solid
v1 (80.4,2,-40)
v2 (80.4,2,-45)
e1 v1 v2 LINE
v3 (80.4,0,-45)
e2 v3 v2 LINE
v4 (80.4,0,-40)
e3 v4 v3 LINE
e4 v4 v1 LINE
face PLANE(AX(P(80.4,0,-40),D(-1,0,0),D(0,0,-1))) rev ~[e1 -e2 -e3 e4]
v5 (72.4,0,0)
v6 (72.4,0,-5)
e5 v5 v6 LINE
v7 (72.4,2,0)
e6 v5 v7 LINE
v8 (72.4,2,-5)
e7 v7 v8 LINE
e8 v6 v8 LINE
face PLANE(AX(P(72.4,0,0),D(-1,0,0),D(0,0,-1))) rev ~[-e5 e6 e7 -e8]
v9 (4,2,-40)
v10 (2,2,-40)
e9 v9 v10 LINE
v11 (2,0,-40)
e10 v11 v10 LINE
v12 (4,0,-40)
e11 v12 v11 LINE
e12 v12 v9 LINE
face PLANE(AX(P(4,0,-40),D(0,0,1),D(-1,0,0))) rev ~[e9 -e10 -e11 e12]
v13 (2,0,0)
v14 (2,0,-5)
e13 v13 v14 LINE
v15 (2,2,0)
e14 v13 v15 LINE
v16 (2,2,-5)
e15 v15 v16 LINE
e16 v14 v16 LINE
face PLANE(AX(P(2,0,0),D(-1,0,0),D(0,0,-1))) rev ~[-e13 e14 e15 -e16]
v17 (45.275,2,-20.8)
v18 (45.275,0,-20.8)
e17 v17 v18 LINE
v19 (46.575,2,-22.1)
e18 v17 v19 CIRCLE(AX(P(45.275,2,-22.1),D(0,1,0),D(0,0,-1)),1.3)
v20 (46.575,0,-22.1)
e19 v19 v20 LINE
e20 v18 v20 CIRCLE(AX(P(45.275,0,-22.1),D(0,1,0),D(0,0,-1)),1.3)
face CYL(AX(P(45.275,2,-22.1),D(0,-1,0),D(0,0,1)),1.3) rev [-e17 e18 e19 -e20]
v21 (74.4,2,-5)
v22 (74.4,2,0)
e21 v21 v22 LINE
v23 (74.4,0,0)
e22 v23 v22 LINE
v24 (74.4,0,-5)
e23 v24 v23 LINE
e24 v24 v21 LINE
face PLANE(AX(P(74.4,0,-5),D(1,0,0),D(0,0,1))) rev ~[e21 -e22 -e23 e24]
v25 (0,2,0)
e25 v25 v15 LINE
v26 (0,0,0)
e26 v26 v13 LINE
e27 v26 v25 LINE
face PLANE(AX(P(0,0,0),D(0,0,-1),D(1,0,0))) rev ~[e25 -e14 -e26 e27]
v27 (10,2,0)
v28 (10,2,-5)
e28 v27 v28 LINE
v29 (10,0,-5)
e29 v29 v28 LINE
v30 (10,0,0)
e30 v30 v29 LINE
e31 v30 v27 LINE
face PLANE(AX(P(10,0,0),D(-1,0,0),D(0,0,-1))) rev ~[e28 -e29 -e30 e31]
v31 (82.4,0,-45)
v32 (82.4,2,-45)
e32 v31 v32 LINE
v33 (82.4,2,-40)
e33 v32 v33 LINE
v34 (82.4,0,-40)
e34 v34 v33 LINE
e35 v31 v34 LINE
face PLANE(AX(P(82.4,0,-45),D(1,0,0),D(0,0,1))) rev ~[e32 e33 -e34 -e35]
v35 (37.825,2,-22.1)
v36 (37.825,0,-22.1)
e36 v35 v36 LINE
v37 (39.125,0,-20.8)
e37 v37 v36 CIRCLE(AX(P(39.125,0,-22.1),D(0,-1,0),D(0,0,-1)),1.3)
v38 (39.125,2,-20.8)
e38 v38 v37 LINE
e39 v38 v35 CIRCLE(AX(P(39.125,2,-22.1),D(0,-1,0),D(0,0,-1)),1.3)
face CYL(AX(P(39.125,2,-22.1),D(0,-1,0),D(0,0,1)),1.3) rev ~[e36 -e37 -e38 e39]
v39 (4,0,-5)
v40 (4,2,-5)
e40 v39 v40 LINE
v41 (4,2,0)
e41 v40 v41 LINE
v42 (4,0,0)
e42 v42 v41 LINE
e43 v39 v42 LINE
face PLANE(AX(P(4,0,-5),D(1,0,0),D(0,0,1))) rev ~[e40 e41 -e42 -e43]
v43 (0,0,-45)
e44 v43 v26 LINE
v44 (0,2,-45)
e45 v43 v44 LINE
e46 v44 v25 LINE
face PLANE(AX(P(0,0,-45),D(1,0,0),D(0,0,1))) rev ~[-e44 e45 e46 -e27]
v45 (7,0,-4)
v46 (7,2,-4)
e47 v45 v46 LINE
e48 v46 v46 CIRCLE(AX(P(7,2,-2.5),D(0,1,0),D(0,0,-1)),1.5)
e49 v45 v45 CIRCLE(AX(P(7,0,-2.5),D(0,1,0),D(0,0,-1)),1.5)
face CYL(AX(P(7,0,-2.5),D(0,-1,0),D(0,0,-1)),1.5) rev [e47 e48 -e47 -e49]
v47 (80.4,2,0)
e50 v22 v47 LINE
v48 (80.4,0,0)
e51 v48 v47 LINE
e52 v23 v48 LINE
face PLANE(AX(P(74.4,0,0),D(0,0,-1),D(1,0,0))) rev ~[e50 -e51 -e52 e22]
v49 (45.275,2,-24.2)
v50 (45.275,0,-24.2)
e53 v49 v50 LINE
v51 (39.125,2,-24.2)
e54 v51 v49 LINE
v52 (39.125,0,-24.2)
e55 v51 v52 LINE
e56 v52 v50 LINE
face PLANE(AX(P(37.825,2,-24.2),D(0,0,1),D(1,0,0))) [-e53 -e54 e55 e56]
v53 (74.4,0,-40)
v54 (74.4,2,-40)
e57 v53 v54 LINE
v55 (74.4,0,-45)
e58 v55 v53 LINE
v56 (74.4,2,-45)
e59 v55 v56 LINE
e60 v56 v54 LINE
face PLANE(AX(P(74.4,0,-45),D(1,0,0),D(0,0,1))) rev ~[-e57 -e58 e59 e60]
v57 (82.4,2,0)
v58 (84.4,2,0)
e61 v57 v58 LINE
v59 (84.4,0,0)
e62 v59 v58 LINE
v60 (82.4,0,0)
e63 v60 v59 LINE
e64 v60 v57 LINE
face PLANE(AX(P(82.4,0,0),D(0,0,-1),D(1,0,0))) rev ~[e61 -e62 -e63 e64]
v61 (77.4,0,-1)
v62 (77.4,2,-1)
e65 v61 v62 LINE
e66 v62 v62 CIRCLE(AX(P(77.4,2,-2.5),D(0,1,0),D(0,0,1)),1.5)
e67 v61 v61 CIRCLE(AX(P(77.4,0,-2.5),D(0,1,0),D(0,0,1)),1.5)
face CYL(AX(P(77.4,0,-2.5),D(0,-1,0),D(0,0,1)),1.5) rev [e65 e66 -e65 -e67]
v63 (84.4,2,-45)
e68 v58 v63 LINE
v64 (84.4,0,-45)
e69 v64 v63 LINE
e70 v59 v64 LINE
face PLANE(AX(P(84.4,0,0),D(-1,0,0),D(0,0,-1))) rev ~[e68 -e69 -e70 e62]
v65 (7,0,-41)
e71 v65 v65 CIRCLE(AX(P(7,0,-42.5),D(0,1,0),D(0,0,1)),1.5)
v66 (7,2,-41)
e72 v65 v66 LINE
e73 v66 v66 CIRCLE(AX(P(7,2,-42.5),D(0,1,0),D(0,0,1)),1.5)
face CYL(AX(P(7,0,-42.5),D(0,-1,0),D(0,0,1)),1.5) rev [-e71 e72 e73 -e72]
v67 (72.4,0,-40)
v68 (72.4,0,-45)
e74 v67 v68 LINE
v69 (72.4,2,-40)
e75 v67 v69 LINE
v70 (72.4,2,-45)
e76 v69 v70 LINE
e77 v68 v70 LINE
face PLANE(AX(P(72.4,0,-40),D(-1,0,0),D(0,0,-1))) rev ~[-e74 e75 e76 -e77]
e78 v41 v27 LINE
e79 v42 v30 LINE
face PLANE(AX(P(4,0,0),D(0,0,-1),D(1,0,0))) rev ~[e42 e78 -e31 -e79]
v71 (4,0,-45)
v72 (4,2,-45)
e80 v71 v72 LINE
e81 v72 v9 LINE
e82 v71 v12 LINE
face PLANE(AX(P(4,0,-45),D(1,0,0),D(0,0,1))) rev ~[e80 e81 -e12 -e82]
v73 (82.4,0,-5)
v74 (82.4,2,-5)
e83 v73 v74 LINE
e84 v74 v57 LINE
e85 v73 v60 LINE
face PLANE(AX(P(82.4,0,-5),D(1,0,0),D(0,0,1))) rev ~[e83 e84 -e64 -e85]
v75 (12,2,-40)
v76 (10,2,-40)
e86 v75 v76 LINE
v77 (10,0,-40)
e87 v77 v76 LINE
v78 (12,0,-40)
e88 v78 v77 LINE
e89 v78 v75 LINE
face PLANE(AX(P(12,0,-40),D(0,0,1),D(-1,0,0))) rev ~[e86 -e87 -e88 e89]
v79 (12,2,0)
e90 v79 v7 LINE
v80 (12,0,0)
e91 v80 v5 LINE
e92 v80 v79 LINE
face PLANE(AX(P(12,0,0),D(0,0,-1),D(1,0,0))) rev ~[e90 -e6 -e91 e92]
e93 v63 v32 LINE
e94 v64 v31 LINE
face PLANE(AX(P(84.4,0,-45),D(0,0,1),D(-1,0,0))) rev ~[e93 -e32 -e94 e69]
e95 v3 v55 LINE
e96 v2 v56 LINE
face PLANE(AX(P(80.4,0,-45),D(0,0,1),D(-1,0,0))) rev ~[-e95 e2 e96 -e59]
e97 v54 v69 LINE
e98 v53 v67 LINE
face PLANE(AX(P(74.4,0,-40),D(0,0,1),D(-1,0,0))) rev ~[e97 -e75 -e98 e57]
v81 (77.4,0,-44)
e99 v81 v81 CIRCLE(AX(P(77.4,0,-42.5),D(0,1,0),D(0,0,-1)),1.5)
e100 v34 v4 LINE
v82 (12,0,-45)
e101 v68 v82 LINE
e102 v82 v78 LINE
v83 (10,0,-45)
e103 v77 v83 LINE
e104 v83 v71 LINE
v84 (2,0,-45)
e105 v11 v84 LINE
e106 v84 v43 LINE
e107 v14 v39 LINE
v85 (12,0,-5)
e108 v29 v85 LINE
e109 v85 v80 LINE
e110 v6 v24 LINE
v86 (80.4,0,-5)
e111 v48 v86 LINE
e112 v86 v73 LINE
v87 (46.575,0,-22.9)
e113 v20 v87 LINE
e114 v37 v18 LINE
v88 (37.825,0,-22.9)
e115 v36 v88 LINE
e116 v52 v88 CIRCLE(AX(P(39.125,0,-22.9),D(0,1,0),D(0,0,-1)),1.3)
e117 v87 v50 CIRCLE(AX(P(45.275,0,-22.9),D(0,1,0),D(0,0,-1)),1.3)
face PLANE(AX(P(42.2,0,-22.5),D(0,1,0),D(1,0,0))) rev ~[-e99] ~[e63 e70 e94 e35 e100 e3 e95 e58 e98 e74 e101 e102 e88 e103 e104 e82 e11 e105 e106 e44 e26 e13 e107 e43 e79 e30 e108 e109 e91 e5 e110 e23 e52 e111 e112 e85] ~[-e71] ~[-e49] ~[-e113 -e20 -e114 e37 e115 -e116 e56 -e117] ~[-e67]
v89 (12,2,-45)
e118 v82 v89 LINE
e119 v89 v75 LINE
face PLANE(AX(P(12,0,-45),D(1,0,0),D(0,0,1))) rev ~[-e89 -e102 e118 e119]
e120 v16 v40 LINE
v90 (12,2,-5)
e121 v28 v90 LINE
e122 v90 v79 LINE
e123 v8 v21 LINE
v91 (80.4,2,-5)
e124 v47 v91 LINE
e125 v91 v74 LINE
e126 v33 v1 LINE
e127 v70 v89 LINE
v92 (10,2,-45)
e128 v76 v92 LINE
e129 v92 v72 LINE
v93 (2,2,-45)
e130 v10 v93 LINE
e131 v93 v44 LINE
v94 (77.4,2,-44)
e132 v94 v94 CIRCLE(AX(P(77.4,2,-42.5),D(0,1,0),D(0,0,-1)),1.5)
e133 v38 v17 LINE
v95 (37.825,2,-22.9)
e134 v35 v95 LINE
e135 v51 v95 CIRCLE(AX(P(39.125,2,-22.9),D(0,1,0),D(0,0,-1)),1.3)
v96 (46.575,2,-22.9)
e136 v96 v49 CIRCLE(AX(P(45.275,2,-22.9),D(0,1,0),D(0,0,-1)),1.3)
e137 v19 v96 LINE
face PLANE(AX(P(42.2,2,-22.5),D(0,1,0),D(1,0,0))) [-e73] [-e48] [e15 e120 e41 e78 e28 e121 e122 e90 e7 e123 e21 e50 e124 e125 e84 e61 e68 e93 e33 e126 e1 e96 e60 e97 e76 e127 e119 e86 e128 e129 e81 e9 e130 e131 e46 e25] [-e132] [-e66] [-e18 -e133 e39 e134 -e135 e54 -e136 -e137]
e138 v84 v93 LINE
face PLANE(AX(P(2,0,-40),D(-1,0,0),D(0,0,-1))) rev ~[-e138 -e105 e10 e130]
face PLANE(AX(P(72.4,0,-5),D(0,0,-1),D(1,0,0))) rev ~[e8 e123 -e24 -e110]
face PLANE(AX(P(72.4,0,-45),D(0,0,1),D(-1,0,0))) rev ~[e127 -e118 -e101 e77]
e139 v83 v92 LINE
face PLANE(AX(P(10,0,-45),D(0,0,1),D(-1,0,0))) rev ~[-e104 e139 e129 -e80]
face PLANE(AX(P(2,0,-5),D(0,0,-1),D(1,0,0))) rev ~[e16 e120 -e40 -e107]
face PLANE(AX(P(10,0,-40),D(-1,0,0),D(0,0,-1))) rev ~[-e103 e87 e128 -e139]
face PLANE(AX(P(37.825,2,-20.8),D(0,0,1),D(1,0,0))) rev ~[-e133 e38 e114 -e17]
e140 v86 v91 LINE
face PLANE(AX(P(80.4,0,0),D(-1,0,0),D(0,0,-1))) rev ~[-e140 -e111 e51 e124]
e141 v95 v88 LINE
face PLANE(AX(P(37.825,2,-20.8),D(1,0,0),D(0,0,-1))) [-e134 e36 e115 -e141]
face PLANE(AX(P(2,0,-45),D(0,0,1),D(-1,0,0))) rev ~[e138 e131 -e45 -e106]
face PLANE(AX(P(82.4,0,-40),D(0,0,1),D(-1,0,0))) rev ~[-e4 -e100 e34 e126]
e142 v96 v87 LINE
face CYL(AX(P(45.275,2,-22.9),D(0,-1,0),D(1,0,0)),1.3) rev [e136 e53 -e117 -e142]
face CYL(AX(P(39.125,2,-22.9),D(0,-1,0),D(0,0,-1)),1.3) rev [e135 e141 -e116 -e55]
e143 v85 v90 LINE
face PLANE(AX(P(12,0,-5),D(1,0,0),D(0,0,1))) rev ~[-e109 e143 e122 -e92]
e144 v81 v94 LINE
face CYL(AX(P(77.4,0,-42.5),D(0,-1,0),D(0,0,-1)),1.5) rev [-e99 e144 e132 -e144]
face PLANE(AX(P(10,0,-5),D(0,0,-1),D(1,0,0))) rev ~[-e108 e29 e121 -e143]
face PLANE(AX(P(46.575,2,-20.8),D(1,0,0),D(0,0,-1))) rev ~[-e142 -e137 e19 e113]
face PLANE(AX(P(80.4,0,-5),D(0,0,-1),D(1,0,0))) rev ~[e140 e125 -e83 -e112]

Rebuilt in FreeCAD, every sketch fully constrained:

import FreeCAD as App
import Part
import Sketcher

V = App.Vector


def edges_at(feature, points):
    """Names of the edges that pass closest to the given points."""
    edges = feature.Shape.Edges
    near = lambda p: min(range(len(edges)), key=lambda i: edges[i].distToShape(Part.Vertex(*p))[0])
    return sorted({f"Edge{near(p) + 1}" for p in points})


def add_polygon(sketch, points):
    """Adds a closed chain of lines whose ends are joined by coincident constraints."""
    first, n = sketch.GeometryCount, len(points)
    for a, b in zip(points, points[1:] + points[:1]):
        sketch.addGeometry(Part.LineSegment(App.Vector(*a, 0), App.Vector(*b, 0)), False)
    for i in range(n):
        sketch.addConstraint(Sketcher.Constraint("Coincident", first + i, 2, first + (i + 1) % n, 1))

doc = App.newDocument("Part")
params = doc.addObject("Spreadsheet::Sheet", "Params")
for row, (alias, value) in enumerate([
    ("sketch1_diameter", "3 mm"),
    ("sketch1_width", "2 mm"),
    ("sketch1_width2", "6 mm"),
    ("sketch1_height", "5 mm"),
    ("sketch1_height2", "45 mm"),
    ("pad1_length", "2 mm"),
    ("sketch2_height", "3.4 mm"),
    ("sketch2_width", "8.75 mm"),
    ("pocket1_length", "10 mm"),
    ("fillet_radius", "1.3 mm"),
], start=1):
    params.set(f"A{row}", alias)
    params.set(f"B{row}", "=" + value)
    params.setAlias(f"B{row}", alias)

body = doc.addObject("PartDesign::Body", "Body")

# Sketch on XZ plane
sketch1 = body.newObject("Sketcher::SketchObject", "Sketch")
sketch1.AttachmentSupport = (doc.getObject("XZ_Plane"), [""])
sketch1.MapMode = "FlatFace"
add_polygon(sketch1, [(0, 0), (2, 0), (2, -5), (4, -5), (4, 0), (10, 0), (10, -5), (12, -5), (12, 0), (72.4, 0), (72.4, -5), (74.4, -5), (74.4, 0), (80.4, 0), (80.4, -5), (82.4, -5), (82.4, 0), (84.4, 0), (84.4, -45), (82.4, -45), (82.4, -40), (80.4, -40), (80.4, -45), (74.4, -45), (74.4, -40), (72.4, -40), (72.4, -45), (12, -45), (12, -40), (10, -40), (10, -45), (4, -45), (4, -40), (2, -40), (2, -45), (0, -45)])  # lines 0-35
sketch1.addGeometry(Part.Circle(V(7, -2.5, 0), V(0, 0, 1), 1.5), False)  # 36
sketch1.addGeometry(Part.Circle(V(77.4, -2.5, 0), V(0, 0, 1), 1.5), False)  # 37
sketch1.addGeometry(Part.Circle(V(7, -42.5, 0), V(0, 0, 1), 1.5), False)  # 38
sketch1.addGeometry(Part.Circle(V(77.4, -42.5, 0), V(0, 0, 1), 1.5), False)  # 39
sketch1.addConstraint(Sketcher.Constraint("Horizontal", 0))
sketch1.addConstraint(Sketcher.Constraint("Vertical", 1))
sketch1.addConstraint(Sketcher.Constraint("Horizontal", 2))
sketch1.addConstraint(Sketcher.Constraint("Vertical", 3))
sketch1.addConstraint(Sketcher.Constraint("Horizontal", 4))
sketch1.addConstraint(Sketcher.Constraint("Vertical", 5))
sketch1.addConstraint(Sketcher.Constraint("Horizontal", 6))
sketch1.addConstraint(Sketcher.Constraint("Vertical", 7))
sketch1.addConstraint(Sketcher.Constraint("Horizontal", 8))
sketch1.addConstraint(Sketcher.Constraint("Vertical", 9))
sketch1.addConstraint(Sketcher.Constraint("Horizontal", 10))
sketch1.addConstraint(Sketcher.Constraint("Vertical", 11))
sketch1.addConstraint(Sketcher.Constraint("Horizontal", 12))
sketch1.addConstraint(Sketcher.Constraint("Vertical", 13))
sketch1.addConstraint(Sketcher.Constraint("Horizontal", 14))
sketch1.addConstraint(Sketcher.Constraint("Vertical", 15))
sketch1.addConstraint(Sketcher.Constraint("Horizontal", 16))
sketch1.addConstraint(Sketcher.Constraint("Vertical", 17))
sketch1.addConstraint(Sketcher.Constraint("Horizontal", 18))
sketch1.addConstraint(Sketcher.Constraint("Vertical", 19))
sketch1.addConstraint(Sketcher.Constraint("Horizontal", 20))
sketch1.addConstraint(Sketcher.Constraint("Vertical", 21))
sketch1.addConstraint(Sketcher.Constraint("Horizontal", 22))
sketch1.addConstraint(Sketcher.Constraint("Vertical", 23))
sketch1.addConstraint(Sketcher.Constraint("Horizontal", 24))
sketch1.addConstraint(Sketcher.Constraint("Vertical", 25))
sketch1.addConstraint(Sketcher.Constraint("Horizontal", 26))
sketch1.addConstraint(Sketcher.Constraint("Vertical", 27))
sketch1.addConstraint(Sketcher.Constraint("Horizontal", 28))
sketch1.addConstraint(Sketcher.Constraint("Vertical", 29))
sketch1.addConstraint(Sketcher.Constraint("Horizontal", 30))
sketch1.addConstraint(Sketcher.Constraint("Vertical", 31))
sketch1.addConstraint(Sketcher.Constraint("Horizontal", 32))
sketch1.addConstraint(Sketcher.Constraint("Vertical", 33))
sketch1.addConstraint(Sketcher.Constraint("Horizontal", 34))
sketch1.addConstraint(Sketcher.Constraint("Vertical", 35))
sketch1.addConstraint(Sketcher.Constraint("Coincident", 35, 2, -1, 1))
sketch1.addConstraint(Sketcher.Constraint("Equal", 36, 37))
sketch1.addConstraint(Sketcher.Constraint("Equal", 37, 38))
sketch1.addConstraint(Sketcher.Constraint("Equal", 38, 39))
sketch1.addConstraint(Sketcher.Constraint("PointOnObject", 3, 2, -1))
sketch1.addConstraint(Sketcher.Constraint("PointOnObject", 7, 2, -1))
sketch1.addConstraint(Sketcher.Constraint("PointOnObject", 11, 2, -1))
sketch1.addConstraint(Sketcher.Constraint("PointOnObject", 15, 2, -1))
sketch1.addConstraint(Sketcher.Constraint("Horizontal", 36, 3, 37, 3))
sketch1.addConstraint(Sketcher.Constraint("Horizontal", 38, 3, 39, 3))
sketch1.addConstraint(Sketcher.Constraint("Horizontal", 2, 2, 5, 2))
sketch1.addConstraint(Sketcher.Constraint("Horizontal", 6, 2, 9, 2))
sketch1.addConstraint(Sketcher.Constraint("Horizontal", 10, 2, 13, 2))
sketch1.addConstraint(Sketcher.Constraint("Horizontal", 18, 2, 21, 2))
sketch1.addConstraint(Sketcher.Constraint("Horizontal", 20, 2, 23, 2))
sketch1.addConstraint(Sketcher.Constraint("Horizontal", 22, 2, 25, 2))
sketch1.addConstraint(Sketcher.Constraint("Horizontal", 24, 2, 27, 2))
sketch1.addConstraint(Sketcher.Constraint("Horizontal", 26, 2, 29, 2))
sketch1.addConstraint(Sketcher.Constraint("Horizontal", 28, 2, 31, 2))
sketch1.addConstraint(Sketcher.Constraint("Horizontal", 30, 2, 33, 2))
sketch1.addConstraint(Sketcher.Constraint("Vertical", 36, 3, 38, 3))
sketch1.addConstraint(Sketcher.Constraint("Vertical", 37, 3, 39, 3))
sketch1.addConstraint(Sketcher.Constraint("Vertical", 15, 2, 18, 2))
sketch1.addConstraint(Sketcher.Constraint("Vertical", 13, 2, 20, 2))
sketch1.addConstraint(Sketcher.Constraint("Vertical", 11, 2, 22, 2))
sketch1.addConstraint(Sketcher.Constraint("Vertical", 9, 2, 24, 2))
sketch1.addConstraint(Sketcher.Constraint("Vertical", 7, 2, 26, 2))
sketch1.addConstraint(Sketcher.Constraint("Vertical", 5, 2, 28, 2))
sketch1.addConstraint(Sketcher.Constraint("Vertical", 3, 2, 30, 2))
sketch1.addConstraint(Sketcher.Constraint("Vertical", 1, 2, 32, 2))
sketch1.addConstraint(Sketcher.Constraint("Equal", 0, 2))
sketch1.addConstraint(Sketcher.Constraint("Equal", 2, 6))
sketch1.addConstraint(Sketcher.Constraint("Equal", 6, 10))
sketch1.addConstraint(Sketcher.Constraint("Equal", 4, 12))
sketch1.addConstraint(Sketcher.Constraint("Equal", 10, 14))
sketch1.addConstraint(Sketcher.Constraint("Equal", 14, 16))
sketch1.addConstraint(Sketcher.Constraint("Equal", 15, 19))
sketch1.addConstraint(Sketcher.Constraint("Diameter", 36, 3.0))
sketch1.addConstraint(Sketcher.Constraint("DistanceX", 0, 1, 0, 2, 2.0))
sketch1.addConstraint(Sketcher.Constraint("DistanceX", 4, 1, 4, 2, 6.0))
sketch1.addConstraint(Sketcher.Constraint("DistanceY", 1, 2, 1, 1, 5.0))
sketch1.addConstraint(Sketcher.Constraint("DistanceY", 17, 2, 17, 1, 45.0))
sketch1.addConstraint(Sketcher.Constraint("DistanceX", 8, 1, 8, 2, 60.4))
sketch1.addConstraint(Sketcher.Constraint("DistanceX", -1, 1, 36, 3, 7.0))
sketch1.addConstraint(Sketcher.Constraint("DistanceY", 38, 3, 36, 3, 40.0))
sketch1.addConstraint(Sketcher.Constraint("DistanceX", 8, 2, 37, 3, 5.0))
sketch1.addConstraint(Sketcher.Constraint("DistanceY", 36, 3, -1, 1, 2.5))
sketch1.setExpression("Constraints[109]", "Params.sketch1_diameter")
sketch1.setExpression("Constraints[110]", "Params.sketch1_width")
sketch1.setExpression("Constraints[111]", "Params.sketch1_width2")
sketch1.setExpression("Constraints[112]", "Params.sketch1_height")
sketch1.setExpression("Constraints[113]", "Params.sketch1_height2")
pad1 = body.newObject("PartDesign::Pad", "Pad")
pad1.Profile = sketch1
pad1.setExpression("Length", "Params.pad1_length")
pad1.Reversed = True

# Sketch on XZ plane
sketch2 = body.newObject("Sketcher::SketchObject", "Sketch001")
sketch2.AttachmentSupport = (doc.getObject("XZ_Plane"), [""])
sketch2.MapMode = "FlatFace"
sketch2.AttachmentOffset = App.Placement(V(0, 0, -2), App.Rotation())
add_polygon(sketch2, [(37.825, -24.2), (37.825, -20.8), (46.575, -20.8), (46.575, -24.2)])  # lines 0-3
sketch2.addConstraint(Sketcher.Constraint("Vertical", 0))
sketch2.addConstraint(Sketcher.Constraint("Horizontal", 1))
sketch2.addConstraint(Sketcher.Constraint("Vertical", 2))
sketch2.addConstraint(Sketcher.Constraint("Horizontal", 3))
sketch2.addConstraint(Sketcher.Constraint("DistanceY", 0, 1, 0, 2, 3.4))
sketch2.addConstraint(Sketcher.Constraint("DistanceX", 1, 1, 1, 2, 8.75))
sketch2.addConstraint(Sketcher.Constraint("DistanceY", 0, 2, -1, 1, 20.8))
sketch2.addConstraint(Sketcher.Constraint("DistanceX", -1, 1, 0, 2, 37.825))
sketch2.setExpression("Constraints[8]", "Params.sketch2_height")
sketch2.setExpression("Constraints[9]", "Params.sketch2_width")
pocket1 = body.newObject("PartDesign::Pocket", "Pocket")
pocket1.Profile = sketch2
pocket1.setExpression("Length", "Params.pocket1_length")
pocket1.Reversed = True
doc.recompute()

fillet = body.newObject("PartDesign::Fillet", "Fillet")
fillet.Base = (pocket1, edges_at(pocket1, [
    (46.575, 1, -24.2),
    (46.575, 1, -20.8),
    (37.825, 1, -20.8),
    (37.825, 1, -24.2),
]))
fillet.setExpression("Radius", "Params.fillet_radius")

doc.recompute()
